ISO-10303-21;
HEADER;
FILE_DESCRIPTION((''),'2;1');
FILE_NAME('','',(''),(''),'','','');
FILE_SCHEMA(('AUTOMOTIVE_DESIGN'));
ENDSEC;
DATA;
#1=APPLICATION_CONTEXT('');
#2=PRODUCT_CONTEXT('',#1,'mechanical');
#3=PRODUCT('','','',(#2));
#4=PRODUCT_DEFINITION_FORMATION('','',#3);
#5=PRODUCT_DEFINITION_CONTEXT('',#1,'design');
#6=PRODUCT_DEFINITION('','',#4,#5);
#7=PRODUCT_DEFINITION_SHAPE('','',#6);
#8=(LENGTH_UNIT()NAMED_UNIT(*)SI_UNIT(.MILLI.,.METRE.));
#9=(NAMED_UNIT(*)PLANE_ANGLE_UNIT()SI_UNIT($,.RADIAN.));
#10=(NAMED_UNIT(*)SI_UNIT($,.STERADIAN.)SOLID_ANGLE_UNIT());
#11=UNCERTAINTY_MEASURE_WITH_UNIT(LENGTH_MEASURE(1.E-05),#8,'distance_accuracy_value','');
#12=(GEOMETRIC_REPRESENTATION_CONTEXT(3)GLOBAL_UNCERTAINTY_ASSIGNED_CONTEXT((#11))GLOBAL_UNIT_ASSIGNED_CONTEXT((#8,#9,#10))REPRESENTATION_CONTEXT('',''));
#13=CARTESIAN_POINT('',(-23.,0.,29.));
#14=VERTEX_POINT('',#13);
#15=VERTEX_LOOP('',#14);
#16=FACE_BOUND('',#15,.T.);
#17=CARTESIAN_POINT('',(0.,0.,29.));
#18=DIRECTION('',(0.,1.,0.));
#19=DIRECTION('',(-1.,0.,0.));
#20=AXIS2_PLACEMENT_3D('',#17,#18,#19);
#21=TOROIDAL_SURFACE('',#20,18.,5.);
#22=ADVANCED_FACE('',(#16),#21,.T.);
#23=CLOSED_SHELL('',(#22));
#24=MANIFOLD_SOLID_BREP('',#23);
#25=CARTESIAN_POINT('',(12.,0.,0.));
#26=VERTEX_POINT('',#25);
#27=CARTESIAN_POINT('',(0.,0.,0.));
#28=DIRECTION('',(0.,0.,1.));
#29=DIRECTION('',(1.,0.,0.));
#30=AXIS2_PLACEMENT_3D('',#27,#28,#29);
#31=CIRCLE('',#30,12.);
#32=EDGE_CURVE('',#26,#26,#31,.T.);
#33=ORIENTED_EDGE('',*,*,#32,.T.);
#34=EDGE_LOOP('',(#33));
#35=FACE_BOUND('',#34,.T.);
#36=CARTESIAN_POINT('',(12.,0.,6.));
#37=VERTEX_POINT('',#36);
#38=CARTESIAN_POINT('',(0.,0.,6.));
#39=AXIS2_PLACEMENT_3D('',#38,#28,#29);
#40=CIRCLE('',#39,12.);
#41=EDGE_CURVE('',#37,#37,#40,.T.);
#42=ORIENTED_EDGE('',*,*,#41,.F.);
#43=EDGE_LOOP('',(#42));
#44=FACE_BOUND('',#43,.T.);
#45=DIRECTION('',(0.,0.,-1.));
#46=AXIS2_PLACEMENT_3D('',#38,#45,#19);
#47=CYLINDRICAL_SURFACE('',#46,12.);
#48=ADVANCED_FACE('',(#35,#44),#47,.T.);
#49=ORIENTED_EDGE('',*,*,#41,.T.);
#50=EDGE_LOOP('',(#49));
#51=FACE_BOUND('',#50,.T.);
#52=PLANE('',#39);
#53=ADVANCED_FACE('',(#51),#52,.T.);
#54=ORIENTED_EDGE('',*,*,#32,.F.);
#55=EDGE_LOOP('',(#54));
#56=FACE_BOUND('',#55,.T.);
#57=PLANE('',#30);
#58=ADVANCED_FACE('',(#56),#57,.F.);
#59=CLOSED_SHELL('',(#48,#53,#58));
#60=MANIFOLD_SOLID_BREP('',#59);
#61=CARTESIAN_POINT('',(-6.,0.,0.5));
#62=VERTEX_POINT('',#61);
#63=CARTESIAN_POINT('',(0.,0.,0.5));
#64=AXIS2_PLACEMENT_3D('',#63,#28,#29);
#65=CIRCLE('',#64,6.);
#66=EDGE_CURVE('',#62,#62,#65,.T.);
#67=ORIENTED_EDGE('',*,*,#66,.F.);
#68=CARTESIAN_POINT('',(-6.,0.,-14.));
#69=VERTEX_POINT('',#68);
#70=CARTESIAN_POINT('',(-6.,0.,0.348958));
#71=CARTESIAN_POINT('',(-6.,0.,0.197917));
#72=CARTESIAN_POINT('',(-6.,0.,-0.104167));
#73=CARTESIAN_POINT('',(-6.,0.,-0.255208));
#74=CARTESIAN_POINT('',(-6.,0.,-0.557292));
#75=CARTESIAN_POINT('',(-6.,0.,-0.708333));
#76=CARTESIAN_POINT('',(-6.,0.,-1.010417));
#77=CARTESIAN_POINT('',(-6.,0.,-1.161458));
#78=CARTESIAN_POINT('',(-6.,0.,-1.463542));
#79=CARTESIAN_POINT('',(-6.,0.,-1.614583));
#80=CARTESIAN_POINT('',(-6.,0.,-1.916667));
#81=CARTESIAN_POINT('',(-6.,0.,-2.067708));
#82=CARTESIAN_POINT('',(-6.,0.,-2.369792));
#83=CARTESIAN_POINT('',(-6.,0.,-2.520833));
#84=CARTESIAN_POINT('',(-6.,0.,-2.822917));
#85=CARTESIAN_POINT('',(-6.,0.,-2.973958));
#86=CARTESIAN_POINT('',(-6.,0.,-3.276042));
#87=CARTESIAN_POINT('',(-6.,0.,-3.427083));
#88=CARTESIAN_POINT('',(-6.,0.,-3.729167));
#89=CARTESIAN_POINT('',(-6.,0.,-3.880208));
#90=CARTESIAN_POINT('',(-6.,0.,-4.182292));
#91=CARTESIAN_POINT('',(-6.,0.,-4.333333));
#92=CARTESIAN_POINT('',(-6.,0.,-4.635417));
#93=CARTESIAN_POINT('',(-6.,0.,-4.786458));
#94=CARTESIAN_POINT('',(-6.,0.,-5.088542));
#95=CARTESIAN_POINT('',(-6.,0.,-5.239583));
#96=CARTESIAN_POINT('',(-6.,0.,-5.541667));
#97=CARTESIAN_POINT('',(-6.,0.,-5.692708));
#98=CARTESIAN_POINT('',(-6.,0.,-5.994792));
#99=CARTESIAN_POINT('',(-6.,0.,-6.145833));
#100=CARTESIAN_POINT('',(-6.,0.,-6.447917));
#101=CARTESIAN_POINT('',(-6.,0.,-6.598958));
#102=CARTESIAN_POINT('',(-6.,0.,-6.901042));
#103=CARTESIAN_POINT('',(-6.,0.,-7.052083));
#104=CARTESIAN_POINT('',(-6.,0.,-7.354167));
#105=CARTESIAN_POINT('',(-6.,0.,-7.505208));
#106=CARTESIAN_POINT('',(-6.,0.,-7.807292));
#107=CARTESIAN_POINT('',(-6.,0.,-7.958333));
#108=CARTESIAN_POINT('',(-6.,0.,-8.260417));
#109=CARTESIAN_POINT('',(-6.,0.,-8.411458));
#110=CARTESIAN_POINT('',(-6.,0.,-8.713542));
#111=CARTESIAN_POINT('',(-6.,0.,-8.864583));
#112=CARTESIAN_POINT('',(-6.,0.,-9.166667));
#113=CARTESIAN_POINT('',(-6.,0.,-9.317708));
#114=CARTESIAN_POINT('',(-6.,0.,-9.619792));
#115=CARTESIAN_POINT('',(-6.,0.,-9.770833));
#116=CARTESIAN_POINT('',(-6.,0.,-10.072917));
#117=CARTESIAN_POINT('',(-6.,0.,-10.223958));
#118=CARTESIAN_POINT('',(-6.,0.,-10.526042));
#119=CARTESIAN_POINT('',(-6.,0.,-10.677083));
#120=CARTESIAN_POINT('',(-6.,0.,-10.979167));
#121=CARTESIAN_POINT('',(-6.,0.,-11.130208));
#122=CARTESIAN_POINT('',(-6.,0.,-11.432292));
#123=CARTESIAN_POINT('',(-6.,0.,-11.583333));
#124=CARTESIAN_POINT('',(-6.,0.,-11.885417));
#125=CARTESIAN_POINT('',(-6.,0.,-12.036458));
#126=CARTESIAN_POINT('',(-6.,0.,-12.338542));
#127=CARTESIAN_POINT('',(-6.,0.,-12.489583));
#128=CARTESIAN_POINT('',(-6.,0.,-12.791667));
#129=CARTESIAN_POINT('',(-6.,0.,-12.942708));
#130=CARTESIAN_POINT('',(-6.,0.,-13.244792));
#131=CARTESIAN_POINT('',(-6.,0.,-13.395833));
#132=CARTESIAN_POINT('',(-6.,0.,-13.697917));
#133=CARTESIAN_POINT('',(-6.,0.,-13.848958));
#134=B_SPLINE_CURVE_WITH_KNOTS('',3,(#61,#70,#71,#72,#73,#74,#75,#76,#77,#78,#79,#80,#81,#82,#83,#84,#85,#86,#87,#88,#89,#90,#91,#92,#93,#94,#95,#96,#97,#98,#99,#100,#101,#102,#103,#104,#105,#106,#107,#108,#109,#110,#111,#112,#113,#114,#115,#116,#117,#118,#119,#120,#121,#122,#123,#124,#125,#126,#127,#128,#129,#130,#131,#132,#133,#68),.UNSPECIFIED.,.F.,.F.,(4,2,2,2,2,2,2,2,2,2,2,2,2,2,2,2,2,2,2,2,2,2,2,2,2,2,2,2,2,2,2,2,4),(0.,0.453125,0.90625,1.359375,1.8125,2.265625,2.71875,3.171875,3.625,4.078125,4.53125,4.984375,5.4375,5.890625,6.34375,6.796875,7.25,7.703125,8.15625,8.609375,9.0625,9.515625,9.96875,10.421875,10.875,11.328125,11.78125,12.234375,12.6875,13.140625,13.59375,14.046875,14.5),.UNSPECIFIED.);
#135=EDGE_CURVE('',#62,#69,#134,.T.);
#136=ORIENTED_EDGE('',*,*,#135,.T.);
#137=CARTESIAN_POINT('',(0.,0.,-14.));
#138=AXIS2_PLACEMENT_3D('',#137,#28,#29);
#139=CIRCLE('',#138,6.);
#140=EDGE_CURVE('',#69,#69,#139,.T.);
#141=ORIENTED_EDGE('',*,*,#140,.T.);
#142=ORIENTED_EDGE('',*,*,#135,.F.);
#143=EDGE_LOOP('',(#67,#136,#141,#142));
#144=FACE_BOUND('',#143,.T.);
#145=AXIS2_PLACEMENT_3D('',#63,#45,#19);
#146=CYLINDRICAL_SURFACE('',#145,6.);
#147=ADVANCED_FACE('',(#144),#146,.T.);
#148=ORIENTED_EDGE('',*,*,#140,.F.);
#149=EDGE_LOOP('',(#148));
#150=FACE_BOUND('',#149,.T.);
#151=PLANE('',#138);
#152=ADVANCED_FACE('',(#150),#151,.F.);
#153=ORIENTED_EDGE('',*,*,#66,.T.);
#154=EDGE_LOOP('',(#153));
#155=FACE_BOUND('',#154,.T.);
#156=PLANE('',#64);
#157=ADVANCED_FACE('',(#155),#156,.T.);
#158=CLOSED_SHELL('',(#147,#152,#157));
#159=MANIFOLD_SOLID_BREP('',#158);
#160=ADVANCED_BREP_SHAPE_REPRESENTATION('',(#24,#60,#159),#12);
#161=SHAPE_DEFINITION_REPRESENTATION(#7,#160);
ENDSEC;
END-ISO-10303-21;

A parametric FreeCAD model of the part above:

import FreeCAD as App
import Part
import Sketcher
Q = App.Units.Quantity

doc = App.newDocument("Part")
body = doc.addObject("PartDesign::Body", "Body")

sketch1 = body.newObject("Sketcher::SketchObject", "Sketch")
sketch1.AttachmentSupport = (doc.getObject("XY_Plane"), [""])
sketch1.MapMode = "FlatFace"
sketch1.AttachmentOffset = App.Placement(App.Vector(0, 0, -14), App.Rotation())
sketch1.addGeometry(Part.Circle(App.Vector(0, 0, 0), App.Vector(0, 0, 1), 6), False)
sketch1.addConstraint([
    Sketcher.Constraint("Coincident", 0, 3, -1, 1),
    Sketcher.Constraint("Diameter", 0, Q("12 mm")),
])
pad1 = body.newObject("PartDesign::Pad", "Pad")
pad1.Profile = sketch1
pad1.Length = 14.5
body2 = doc.addObject("PartDesign::Body", "Body001")

sketch2 = body2.newObject("Sketcher::SketchObject", "Sketch001")
sketch2.AttachmentSupport = (doc.getObject("XY_Plane001"), [""])
sketch2.MapMode = "FlatFace"
sketch2.addGeometry(Part.Circle(App.Vector(0, 0, 0), App.Vector(0, 0, 1), 12), False)
sketch2.addConstraint([
    Sketcher.Constraint("Coincident", 0, 3, -1, 1),
    Sketcher.Constraint("Diameter", 0, Q("24 mm")),
])
pad2 = body2.newObject("PartDesign::Pad", "Pad001")
pad2.Profile = sketch2
pad2.Length = 6
body3 = doc.addObject("PartDesign::Body", "Body002")

sketch3 = body3.newObject("Sketcher::SketchObject", "Sketch002")
sketch3.AttachmentSupport = (doc.getObject("XZ_Plane002"), [""])
sketch3.MapMode = "FlatFace"
sketch3.addGeometry(Part.Circle(App.Vector(18, 0, 0), App.Vector(0, 0, 1), 5), False)
sketch3.addConstraint([
    Sketcher.Constraint("PointOnObject", 0, 3, -1),
    Sketcher.Constraint("Diameter", 0, Q("10 mm")),
    Sketcher.Constraint("DistanceX", -1, 1, 0, 3, Q("18 mm")),
])
revolution = body3.newObject("PartDesign::Revolution", "Revolution")
revolution.Profile = sketch3
revolution.ReferenceAxis = (sketch3, ["V_Axis"])
revolution.Angle = 360
body4 = doc.addObject("PartDesign::Body", "Body003")
doc.recompute()

body3.Placement = App.Placement(App.Vector(0, 0, 0), App.Rotation(App.Vector(1, 0, 0), 90))
boolean = body4.newObject("PartDesign::Boolean", "Boolean")
boolean.Type = "Fuse"
boolean.addObjects([body3])
body5 = doc.addObject("PartDesign::Body", "Body004")
doc.recompute()

body4.Placement = App.Placement(App.Vector(0, 0, 29), App.Rotation(App.Vector(0, 0, 1), 0))
boolean2 = body5.newObject("PartDesign::Boolean", "Boolean001")
boolean2.Type = "Fuse"
boolean2.addObjects([body4])

doc.recompute()
